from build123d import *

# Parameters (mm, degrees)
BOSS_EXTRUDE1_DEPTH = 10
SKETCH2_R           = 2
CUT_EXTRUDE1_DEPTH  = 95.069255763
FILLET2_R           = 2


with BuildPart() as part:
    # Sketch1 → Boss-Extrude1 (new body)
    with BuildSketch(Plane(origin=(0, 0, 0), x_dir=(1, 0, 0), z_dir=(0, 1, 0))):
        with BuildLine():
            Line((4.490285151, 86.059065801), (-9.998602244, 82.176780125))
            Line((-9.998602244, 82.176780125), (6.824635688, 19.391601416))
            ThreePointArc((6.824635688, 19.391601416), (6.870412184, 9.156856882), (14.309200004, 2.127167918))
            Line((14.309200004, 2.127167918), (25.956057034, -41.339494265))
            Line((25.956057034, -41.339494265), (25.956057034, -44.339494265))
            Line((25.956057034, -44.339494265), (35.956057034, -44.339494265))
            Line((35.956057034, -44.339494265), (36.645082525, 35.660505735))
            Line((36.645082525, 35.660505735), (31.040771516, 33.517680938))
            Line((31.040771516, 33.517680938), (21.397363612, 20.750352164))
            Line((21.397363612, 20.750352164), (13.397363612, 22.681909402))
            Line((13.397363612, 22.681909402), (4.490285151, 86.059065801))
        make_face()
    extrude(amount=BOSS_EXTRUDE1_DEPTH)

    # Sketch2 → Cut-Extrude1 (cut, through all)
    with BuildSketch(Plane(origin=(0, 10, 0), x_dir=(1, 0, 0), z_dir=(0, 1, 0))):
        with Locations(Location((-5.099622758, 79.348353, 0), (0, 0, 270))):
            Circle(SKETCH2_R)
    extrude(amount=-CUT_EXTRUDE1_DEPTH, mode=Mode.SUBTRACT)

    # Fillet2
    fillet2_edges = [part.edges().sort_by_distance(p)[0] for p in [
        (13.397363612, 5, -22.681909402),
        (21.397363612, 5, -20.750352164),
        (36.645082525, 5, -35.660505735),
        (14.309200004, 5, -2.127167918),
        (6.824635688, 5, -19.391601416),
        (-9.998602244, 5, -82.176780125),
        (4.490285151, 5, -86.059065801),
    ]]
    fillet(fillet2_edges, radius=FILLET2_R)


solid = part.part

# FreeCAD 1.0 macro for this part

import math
import FreeCAD as App
import Part
import Sketcher
Q = App.Units.Quantity


def edges_at(feature, points):
    """Names of the edges that pass closest to the given points."""
    edges = feature.Shape.Edges
    near = lambda p: min(range(len(edges)), key=lambda i: edges[i].distToShape(Part.Vertex(*p))[0])
    return sorted({f"Edge{near(p) + 1}" for p in points})

doc = App.newDocument("Part")
body = doc.addObject("PartDesign::Body", "Body")

sketch1 = body.newObject("Sketcher::SketchObject", "Sketch")
sketch1.AttachmentSupport = (doc.getObject("XZ_Plane"), [""])
sketch1.MapMode = "FlatFace"
sketch1.addGeometry([
    Part.LineSegment(App.Vector(4.5, -86.1, 0), App.Vector(-10, -82.2, 0)),
    Part.LineSegment(App.Vector(-10, -82.2, 0), App.Vector(6.8, -19.4, 0)),
    Part.ArcOfCircle(Part.Circle(App.Vector(18.8, -14.3, 0), App.Vector(0, 0, 1), 13), math.radians(110), math.radians(203)),
    Part.LineSegment(App.Vector(14.3, -2.1, 0), App.Vector(26, 41.3, 0)),
    Part.LineSegment(App.Vector(26, 41.3, 0), App.Vector(26, 44.3, 0)),
    Part.LineSegment(App.Vector(26, 44.3, 0), App.Vector(36, 44.3, 0)),
    Part.LineSegment(App.Vector(36, 44.3, 0), App.Vector(36.6, -35.7, 0)),
    Part.LineSegment(App.Vector(36.6, -35.7, 0), App.Vector(31, -33.5, 0)),
    Part.LineSegment(App.Vector(31, -33.5, 0), App.Vector(21.4, -20.8, 0)),
    Part.LineSegment(App.Vector(21.4, -20.8, 0), App.Vector(13.4, -22.7, 0)),
    Part.LineSegment(App.Vector(13.4, -22.7, 0), App.Vector(4.5, -86.1, 0)),
], False)
sketch1.addConstraint([
    Sketcher.Constraint("Coincident", 0, 2, 1, 1),
    Sketcher.Constraint("Coincident", 1, 2, 2, 2),
    Sketcher.Constraint("Coincident", 2, 1, 3, 1),
    Sketcher.Constraint("Coincident", 3, 2, 4, 1),
    Sketcher.Constraint("Coincident", 4, 2, 5, 1),
    Sketcher.Constraint("Coincident", 5, 2, 6, 1),
    Sketcher.Constraint("Coincident", 6, 2, 7, 1),
    Sketcher.Constraint("Coincident", 7, 2, 8, 1),
    Sketcher.Constraint("Coincident", 8, 2, 9, 1),
    Sketcher.Constraint("Coincident", 9, 2, 10, 1),
    Sketcher.Constraint("Coincident", 10, 2, 0, 1),
    Sketcher.Constraint("Vertical", 4),
    Sketcher.Constraint("Horizontal", 5),
    Sketcher.Constraint("Perpendicular", 0, 1),
    Sketcher.Constraint("Parallel", 1, 3),
    Sketcher.Constraint("Radius", 2, 13.0),
    Sketcher.Constraint("DistanceX", 5, 1, 5, 2, 10.0),
    Sketcher.Constraint("DistanceY", 4, 1, 4, 2, 3.0),
    Sketcher.Constraint("Angle", 0, Q("165 deg")),
    Sketcher.Constraint("Angle", 10, Q("-98 deg")),
    Sketcher.Constraint("Distance", 0, 15.0),
    Sketcher.Constraint("Distance", 1, 65.0),
    Sketcher.Constraint("Distance", 3, 45.0),
    Sketcher.Constraint("Distance", 7, 6.0),
    Sketcher.Constraint("Distance", 8, 16.0),
    Sketcher.Constraint("Distance", 10, 64.0),
    Sketcher.Constraint("DistanceY", 6, 2, 3, 2, 77.0),
    Sketcher.Constraint("DistanceX", 9, 2, 8, 2, 8.0),
    Sketcher.Constraint("DistanceX", -1, 1, 2, 3, 18.797801),
    Sketcher.Constraint("DistanceY", 1, 2, -1, 1, 19.391601),
    Sketcher.Constraint("DistanceX", -1, 1, 2, 1, 14.3092),
    Sketcher.Constraint("DistanceY", 0, 2, 2, 3, 67.849101),
    Sketcher.Constraint("DistanceY", 0, 2, 7, 2, 48.659099),
    Sketcher.Constraint("Distance", 9, 8.229879),
])
pad1 = body.newObject("PartDesign::Pad", "Pad")
pad1.Profile = sketch1
pad1.Length = 10
pad1.Reversed = True

sketch2 = body.newObject("Sketcher::SketchObject", "Sketch001")
sketch2.AttachmentSupport = (doc.getObject("XZ_Plane"), [""])
sketch2.MapMode = "FlatFace"
sketch2.AttachmentOffset = App.Placement(App.Vector(0, 0, -10), App.Rotation())
sketch2.addGeometry(Part.Circle(App.Vector(-5.1, -79.3, 0), App.Vector(0, 0, 1), 2), False)
sketch2.addConstraint([
    Sketcher.Constraint("Diameter", 0, 4.0),
    Sketcher.Constraint("DistanceX", 0, 3, -1, 1, 5.099623),
    Sketcher.Constraint("DistanceY", 0, 3, -1, 1, 79.348353),
])
pocket1 = body.newObject("PartDesign::Pocket", "Pocket")
pocket1.Profile = sketch2
pocket1.Type = "ThroughAll"
pocket1.Reversed = True
doc.recompute()

fillet = body.newObject("PartDesign::Fillet", "Fillet")
fillet.Base = (pocket1, edges_at(pocket1, [
    (13.397, 5, -22.682),
    (21.397, 5, -20.75),
    (36.645, 5, -35.661),
    (14.309, 5, -2.127),
    (6.825, 5, -19.392),
    (-9.999, 5, -82.177),
    (4.49, 5, -86.059),
]))
fillet.Radius = 2

doc.recompute()
